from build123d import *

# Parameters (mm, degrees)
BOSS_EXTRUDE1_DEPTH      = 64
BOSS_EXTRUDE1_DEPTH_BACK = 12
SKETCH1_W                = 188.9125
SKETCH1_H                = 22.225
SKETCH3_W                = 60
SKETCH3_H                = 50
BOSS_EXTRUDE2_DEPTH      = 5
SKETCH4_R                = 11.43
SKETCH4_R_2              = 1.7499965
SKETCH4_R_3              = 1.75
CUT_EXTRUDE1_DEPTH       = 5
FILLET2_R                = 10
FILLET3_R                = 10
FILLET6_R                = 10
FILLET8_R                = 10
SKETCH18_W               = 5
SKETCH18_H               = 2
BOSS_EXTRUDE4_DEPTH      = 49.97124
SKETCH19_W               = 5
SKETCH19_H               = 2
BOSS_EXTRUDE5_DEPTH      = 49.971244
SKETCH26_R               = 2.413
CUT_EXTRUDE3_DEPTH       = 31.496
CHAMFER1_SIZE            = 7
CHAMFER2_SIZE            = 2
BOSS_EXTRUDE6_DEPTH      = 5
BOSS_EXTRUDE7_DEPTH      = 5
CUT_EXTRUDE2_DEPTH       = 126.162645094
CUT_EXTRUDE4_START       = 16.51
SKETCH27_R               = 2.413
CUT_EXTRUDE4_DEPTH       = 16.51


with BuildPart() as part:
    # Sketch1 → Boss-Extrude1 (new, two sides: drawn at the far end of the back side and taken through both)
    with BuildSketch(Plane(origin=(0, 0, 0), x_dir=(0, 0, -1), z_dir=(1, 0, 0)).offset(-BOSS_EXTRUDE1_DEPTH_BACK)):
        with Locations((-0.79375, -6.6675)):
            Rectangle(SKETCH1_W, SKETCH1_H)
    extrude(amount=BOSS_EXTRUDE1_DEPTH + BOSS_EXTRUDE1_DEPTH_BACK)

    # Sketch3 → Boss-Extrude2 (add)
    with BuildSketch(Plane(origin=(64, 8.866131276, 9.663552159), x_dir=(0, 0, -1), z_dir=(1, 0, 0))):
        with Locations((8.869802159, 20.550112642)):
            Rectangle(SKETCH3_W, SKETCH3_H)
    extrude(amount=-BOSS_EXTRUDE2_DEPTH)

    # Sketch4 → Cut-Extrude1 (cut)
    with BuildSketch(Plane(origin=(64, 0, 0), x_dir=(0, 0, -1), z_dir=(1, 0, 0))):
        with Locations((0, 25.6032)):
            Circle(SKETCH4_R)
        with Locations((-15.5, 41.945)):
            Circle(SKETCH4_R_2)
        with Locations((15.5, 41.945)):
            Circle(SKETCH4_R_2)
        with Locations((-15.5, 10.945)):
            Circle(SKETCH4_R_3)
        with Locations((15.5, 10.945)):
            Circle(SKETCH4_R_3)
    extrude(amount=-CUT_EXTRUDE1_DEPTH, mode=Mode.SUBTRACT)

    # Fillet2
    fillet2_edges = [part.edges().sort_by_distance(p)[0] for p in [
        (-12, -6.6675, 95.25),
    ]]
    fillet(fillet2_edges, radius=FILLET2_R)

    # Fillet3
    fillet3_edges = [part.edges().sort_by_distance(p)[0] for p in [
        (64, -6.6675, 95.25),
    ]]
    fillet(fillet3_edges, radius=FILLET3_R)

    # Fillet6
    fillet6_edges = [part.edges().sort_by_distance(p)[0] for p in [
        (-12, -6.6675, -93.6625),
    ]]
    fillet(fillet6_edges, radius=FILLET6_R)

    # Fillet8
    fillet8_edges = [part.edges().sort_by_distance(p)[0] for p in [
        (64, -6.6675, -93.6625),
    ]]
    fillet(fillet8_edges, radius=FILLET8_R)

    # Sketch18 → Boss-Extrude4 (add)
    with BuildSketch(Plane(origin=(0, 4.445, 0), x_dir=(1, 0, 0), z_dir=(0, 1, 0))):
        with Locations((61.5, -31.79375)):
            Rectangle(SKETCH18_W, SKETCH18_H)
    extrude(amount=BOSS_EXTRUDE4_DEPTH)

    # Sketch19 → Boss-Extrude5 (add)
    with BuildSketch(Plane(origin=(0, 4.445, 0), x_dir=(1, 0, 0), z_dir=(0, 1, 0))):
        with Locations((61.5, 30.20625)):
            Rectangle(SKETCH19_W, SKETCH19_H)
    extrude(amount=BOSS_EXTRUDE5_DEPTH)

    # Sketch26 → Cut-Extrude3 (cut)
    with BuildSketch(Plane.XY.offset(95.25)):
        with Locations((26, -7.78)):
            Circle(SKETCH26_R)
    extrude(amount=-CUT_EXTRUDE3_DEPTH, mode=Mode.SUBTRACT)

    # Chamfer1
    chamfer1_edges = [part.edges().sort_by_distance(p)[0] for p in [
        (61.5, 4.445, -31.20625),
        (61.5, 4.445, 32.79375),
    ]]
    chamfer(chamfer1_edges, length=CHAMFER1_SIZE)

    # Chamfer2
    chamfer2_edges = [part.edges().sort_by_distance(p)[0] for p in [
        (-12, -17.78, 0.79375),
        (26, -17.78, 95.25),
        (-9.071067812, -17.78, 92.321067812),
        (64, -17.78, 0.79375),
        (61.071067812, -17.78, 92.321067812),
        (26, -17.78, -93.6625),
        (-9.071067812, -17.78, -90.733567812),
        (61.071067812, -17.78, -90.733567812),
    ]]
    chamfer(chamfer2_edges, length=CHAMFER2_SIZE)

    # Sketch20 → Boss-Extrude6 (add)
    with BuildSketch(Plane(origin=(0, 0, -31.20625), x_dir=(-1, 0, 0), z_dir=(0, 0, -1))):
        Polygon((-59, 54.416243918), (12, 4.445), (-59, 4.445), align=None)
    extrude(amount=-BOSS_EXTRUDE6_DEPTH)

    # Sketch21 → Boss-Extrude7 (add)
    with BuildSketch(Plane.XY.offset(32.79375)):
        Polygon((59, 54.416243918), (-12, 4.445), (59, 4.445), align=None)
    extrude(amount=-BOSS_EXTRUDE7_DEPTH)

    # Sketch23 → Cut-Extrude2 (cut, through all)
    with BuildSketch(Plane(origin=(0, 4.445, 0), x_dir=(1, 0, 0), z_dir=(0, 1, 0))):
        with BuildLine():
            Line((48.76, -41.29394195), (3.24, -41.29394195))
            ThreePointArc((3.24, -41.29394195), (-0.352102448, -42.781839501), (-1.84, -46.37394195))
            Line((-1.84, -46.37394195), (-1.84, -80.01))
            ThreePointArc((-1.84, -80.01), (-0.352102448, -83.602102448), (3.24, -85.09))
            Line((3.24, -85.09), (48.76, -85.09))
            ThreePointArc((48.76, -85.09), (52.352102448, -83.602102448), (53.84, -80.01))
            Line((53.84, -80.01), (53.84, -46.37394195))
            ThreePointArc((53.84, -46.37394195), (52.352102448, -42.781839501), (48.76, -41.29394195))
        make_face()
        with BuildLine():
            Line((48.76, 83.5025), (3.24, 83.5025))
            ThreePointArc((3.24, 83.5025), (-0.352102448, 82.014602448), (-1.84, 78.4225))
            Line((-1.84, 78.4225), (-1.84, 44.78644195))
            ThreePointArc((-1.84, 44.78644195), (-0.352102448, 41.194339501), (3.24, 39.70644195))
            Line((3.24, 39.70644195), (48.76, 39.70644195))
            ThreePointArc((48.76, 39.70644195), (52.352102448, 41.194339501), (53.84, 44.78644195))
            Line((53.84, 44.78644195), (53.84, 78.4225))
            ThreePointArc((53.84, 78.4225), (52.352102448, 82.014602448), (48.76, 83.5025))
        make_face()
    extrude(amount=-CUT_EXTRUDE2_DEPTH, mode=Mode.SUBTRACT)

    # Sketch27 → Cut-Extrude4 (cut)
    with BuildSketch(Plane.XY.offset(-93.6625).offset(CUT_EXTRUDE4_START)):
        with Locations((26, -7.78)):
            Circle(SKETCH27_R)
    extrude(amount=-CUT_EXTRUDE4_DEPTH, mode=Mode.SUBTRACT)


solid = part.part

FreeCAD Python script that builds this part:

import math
import FreeCAD as App
import Part
import Sketcher
from FreeCAD import Vector
Q = App.Units.Quantity


def edges_at(feature, points):
    """Names of the edges that pass closest to the given points."""
    edges = feature.Shape.Edges
    near = lambda p: min(range(len(edges)), key=lambda i: edges[i].distToShape(Part.Vertex(*p))[0])
    return sorted({f"Edge{near(p) + 1}" for p in points})


def add_polygon(sketch, points):
    """Adds a closed chain of lines whose ends are joined by coincident constraints."""
    first, n = sketch.GeometryCount, len(points)
    for a, b in zip(points, points[1:] + points[:1]):
        sketch.addGeometry(Part.LineSegment(App.Vector(*a, 0), App.Vector(*b, 0)), False)
    for i in range(n):
        sketch.addConstraint(Sketcher.Constraint("Coincident", first + i, 2, first + (i + 1) % n, 1))

doc = App.newDocument("Part")
params = doc.addObject("Spreadsheet::Sheet", "Params")
for row, (alias, value) in enumerate([
    ("pad1_length", "64 mm"),
    ("pad1_length2", "12 mm"),
    ("sketch2_width", "50 mm"),
    ("sketch2_height", "60 mm"),
    ("pad2_length", "5 mm"),
    ("sketch3_diameter", "3.5 mm"),
    ("sketch3_diameter2", "22.86 mm"),
    ("pocket1_length", "5 mm"),
    ("fillet_radius", "10 mm"),
    ("fillet2_radius", "10 mm"),
    ("fillet3_radius", "10 mm"),
    ("fillet4_radius", "10 mm"),
    ("sketch4_width", "5 mm"),
    ("sketch4_height", "2 mm"),
    ("pad3_length", "49.97124 mm"),
    ("sketch5_width", "5 mm"),
    ("sketch5_height", "2 mm"),
    ("pad4_length", "49.971244 mm"),
    ("pocket2_length", "31.496 mm"),
    ("chamfer_size", "7 mm"),
    ("chamfer2_size", "2 mm"),
    ("sketch7_width", "71 mm"),
    ("pad5_length", "5 mm"),
    ("sketch8_width", "71 mm"),
    ("pad6_length", "5 mm"),
    ("sketch9_radius", "5.08 mm"),
    ("sketch9_width", "45.52 mm"),
    ("pocket4_length", "16.51 mm"),
], start=1):
    params.set(f"A{row}", alias)
    params.set(f"B{row}", "=" + value)
    params.setAlias(f"B{row}", alias)

body = doc.addObject("PartDesign::Body", "Body")

sketch1 = body.newObject("Sketcher::SketchObject", "Sketch")
sketch1.AttachmentSupport = (doc.getObject("YZ_Plane"), [""])
sketch1.MapMode = "FlatFace"
add_polygon(sketch1, [(4, 95), (-18, 95), (-18, -94), (4, -94)])
sketch1.addConstraint([
    Sketcher.Constraint("Horizontal", 0),
    Sketcher.Constraint("Vertical", 1),
    Sketcher.Constraint("Horizontal", 2),
    Sketcher.Constraint("Vertical", 3),
    Sketcher.Constraint("DistanceX", 0, 2, 0, 1, Q("22.225 mm")),
    Sketcher.Constraint("DistanceX", 0, 2, -1, 1, Q("17.78 mm")),
    Sketcher.Constraint("DistanceY", -1, 1, 0, 2, Q("95.25 mm")),
    Sketcher.Constraint("DistanceY", 1, 2, 1, 1, Q("188.9125 mm")),
])
pad1 = body.newObject("PartDesign::Pad", "Pad")
pad1.Profile = sketch1
pad1.Type = "TwoLengths"
pad1.setExpression("Length", "Params.pad1_length")
pad1.setExpression("Length2", "Params.pad1_length2")

sketch2 = body.newObject("Sketcher::SketchObject", "Sketch001")
sketch2.AttachmentSupport = (doc.getObject("YZ_Plane"), [""])
sketch2.MapMode = "FlatFace"
sketch2.AttachmentOffset = App.Placement(Vector(0, 0, 64), App.Rotation())
add_polygon(sketch2, [(54, 31), (4, 31), (4, -29), (54, -29)])
sketch2.addConstraint([
    Sketcher.Constraint("Horizontal", 0),
    Sketcher.Constraint("Vertical", 1),
    Sketcher.Constraint("Horizontal", 2),
    Sketcher.Constraint("Vertical", 3),
    Sketcher.Constraint("DistanceX", 0, 2, 0, 1, Q("50 mm")),
    Sketcher.Constraint("DistanceY", 1, 2, 1, 1, Q("60 mm")),
    Sketcher.Constraint("DistanceY", -1, 1, 0, 2, Q("30.79375 mm")),
    Sketcher.Constraint("DistanceX", -1, 1, 0, 2, Q("4.416244 mm")),
])
sketch2.setExpression("Constraints[8]", "Params.sketch2_width")
sketch2.setExpression("Constraints[9]", "Params.sketch2_height")
pad2 = body.newObject("PartDesign::Pad", "Pad001")
pad2.Profile = sketch2
pad2.setExpression("Length", "Params.pad2_length")
pad2.Reversed = True

sketch3 = body.newObject("Sketcher::SketchObject", "Sketch002")
sketch3.AttachmentSupport = (doc.getObject("YZ_Plane"), [""])
sketch3.MapMode = "FlatFace"
sketch3.AttachmentOffset = App.Placement(Vector(0, 0, 64), App.Rotation())
sketch3.addGeometry([
    Part.Circle(Vector(25.6, 0, 0), Vector(0, 0, 1), 11.4),
    Part.Circle(Vector(41.9, 15.5, 0), Vector(0, 0, 1), 1.7),
    Part.Circle(Vector(41.9, -15.5, 0), Vector(0, 0, 1), 1.7),
    Part.Circle(Vector(10.9, 15.5, 0), Vector(0, 0, 1), 1.8),
    Part.Circle(Vector(10.9, -15.5, 0), Vector(0, 0, 1), 1.8),
], False)
sketch3.addConstraint([
    Sketcher.Constraint("Equal", 1, 2),
    Sketcher.Constraint("Equal", 3, 4),
    Sketcher.Constraint("Symmetric", 1, 3, 2, 3, -1),
    Sketcher.Constraint("Symmetric", 3, 3, 4, 3, -1),
    Sketcher.Constraint("PointOnObject", 0, 3, -1),
    Sketcher.Constraint("Horizontal", 1, 3, 3, 3),
    Sketcher.Constraint("Diameter", 3, Q("3.5 mm")),
    Sketcher.Constraint("Diameter", 0, Q("22.86 mm")),
    Sketcher.Constraint("DistanceY", 2, 3, 1, 3, Q("31 mm")),
    Sketcher.Constraint("DistanceX", 3, 3, 1, 3, Q("31 mm")),
    Sketcher.Constraint("Diameter", 1, Q("3.499993 mm")),
    Sketcher.Constraint("DistanceX", -1, 1, 1, 3, Q("41.945 mm")),
    Sketcher.Constraint("DistanceX", -1, 1, 0, 3, Q("25.6032 mm")),
])
sketch3.setExpression("Constraints[6]", "Params.sketch3_diameter")
sketch3.setExpression("Constraints[7]", "Params.sketch3_diameter2")
pocket1 = body.newObject("PartDesign::Pocket", "Pocket")
pocket1.Profile = sketch3
pocket1.setExpression("Length", "Params.pocket1_length")
doc.recompute()

fillet = body.newObject("PartDesign::Fillet", "Fillet")
fillet.Base = (pocket1, edges_at(pocket1, [(-12, -6.668, 95.25)]))
fillet.setExpression("Radius", "Params.fillet_radius")
doc.recompute()

fillet2 = body.newObject("PartDesign::Fillet", "Fillet001")
fillet2.Base = (fillet, edges_at(fillet, [(64, -6.668, 95.25)]))
fillet2.setExpression("Radius", "Params.fillet2_radius")
doc.recompute()

fillet3 = body.newObject("PartDesign::Fillet", "Fillet002")
fillet3.Base = (fillet2, edges_at(fillet2, [(-12, -6.668, -93.662)]))
fillet3.setExpression("Radius", "Params.fillet3_radius")
doc.recompute()

fillet4 = body.newObject("PartDesign::Fillet", "Fillet003")
fillet4.Base = (fillet3, edges_at(fillet3, [(64, -6.668, -93.662)]))
fillet4.setExpression("Radius", "Params.fillet4_radius")

sketch4 = body.newObject("Sketcher::SketchObject", "Sketch003")
sketch4.AttachmentSupport = (doc.getObject("XZ_Plane"), [""])
sketch4.MapMode = "FlatFace"
sketch4.AttachmentOffset = App.Placement(Vector(0, 0, -4.445), App.Rotation())
add_polygon(sketch4, [(59, 30.8), (59, 32.8), (64, 32.8), (64, 30.8)])
sketch4.addConstraint([
    Sketcher.Constraint("Vertical", 0),
    Sketcher.Constraint("Horizontal", 1),
    Sketcher.Constraint("Vertical", 2),
    Sketcher.Constraint("Horizontal", 3),
    Sketcher.Constraint("DistanceX", 1, 1, 1, 2, Q("5 mm")),
    Sketcher.Constraint("DistanceY", 0, 1, 0, 2, Q("2 mm")),
    Sketcher.Constraint("DistanceX", -1, 1, 0, 2, Q("59 mm")),
    Sketcher.Constraint("DistanceY", -1, 1, 0, 2, Q("32.79375 mm")),
])
sketch4.setExpression("Constraints[8]", "Params.sketch4_width")
sketch4.setExpression("Constraints[9]", "Params.sketch4_height")
pad3 = body.newObject("PartDesign::Pad", "Pad002")
pad3.Profile = sketch4
pad3.setExpression("Length", "Params.pad3_length")
pad3.Reversed = True

sketch5 = body.newObject("Sketcher::SketchObject", "Sketch004")
sketch5.AttachmentSupport = (doc.getObject("XZ_Plane"), [""])
sketch5.MapMode = "FlatFace"
sketch5.AttachmentOffset = App.Placement(Vector(0, 0, -4.445), App.Rotation())
add_polygon(sketch5, [(59, -31.2), (59, -29.2), (64, -29.2), (64, -31.2)])
sketch5.addConstraint([
    Sketcher.Constraint("Vertical", 0),
    Sketcher.Constraint("Horizontal", 1),
    Sketcher.Constraint("Vertical", 2),
    Sketcher.Constraint("Horizontal", 3),
    Sketcher.Constraint("DistanceX", 1, 1, 1, 2, Q("5 mm")),
    Sketcher.Constraint("DistanceY", 0, 1, 0, 2, Q("2 mm")),
    Sketcher.Constraint("DistanceX", -1, 1, 0, 2, Q("59 mm")),
    Sketcher.Constraint("DistanceY", 0, 2, -1, 1, Q("29.20625 mm")),
])
sketch5.setExpression("Constraints[8]", "Params.sketch5_width")
sketch5.setExpression("Constraints[9]", "Params.sketch5_height")
pad4 = body.newObject("PartDesign::Pad", "Pad003")
pad4.Profile = sketch5
pad4.setExpression("Length", "Params.pad4_length")
pad4.Reversed = True

sketch6 = body.newObject("Sketcher::SketchObject", "Sketch005")
sketch6.AttachmentSupport = (doc.getObject("XY_Plane"), [""])
sketch6.MapMode = "FlatFace"
sketch6.AttachmentOffset = App.Placement(Vector(0, 0, 95.25), App.Rotation())
sketch6.addGeometry(Part.Circle(Vector(26, -7.8, 0), Vector(0, 0, 1), 2.4), False)
sketch6.addConstraint([
    Sketcher.Constraint("Diameter", 0, Q("4.826 mm")),
    Sketcher.Constraint("DistanceX", -1, 1, 0, 3, Q("26 mm")),
    Sketcher.Constraint("DistanceY", 0, 3, -1, 1, Q("7.78 mm")),
])
pocket2 = body.newObject("PartDesign::Pocket", "Pocket001")
pocket2.Profile = sketch6
pocket2.setExpression("Length", "Params.pocket2_length")
doc.recompute()

chamfer = body.newObject("PartDesign::Chamfer", "Chamfer")
chamfer.Base = (pocket2, edges_at(pocket2, [(61.5, 4.445, -31.206), (61.5, 4.445, 32.794)]))
chamfer.setExpression("Size", "Params.chamfer_size")
doc.recompute()

chamfer2 = body.newObject("PartDesign::Chamfer", "Chamfer001")
chamfer2.Base = (chamfer, edges_at(chamfer, [
    (-12, -17.78, 0.794),
    (26, -17.78, 95.25),
    (-9.071, -17.78, 92.321),
    (64, -17.78, 0.794),
    (61.071, -17.78, 92.321),
    (26, -17.78, -93.662),
    (-9.071, -17.78, -90.734),
    (61.071, -17.78, -90.734),
]))
chamfer2.setExpression("Size", "Params.chamfer2_size")

sketch7 = body.newObject("Sketcher::SketchObject", "Sketch006")
sketch7.AttachmentSupport = (doc.getObject("XY_Plane"), [""])
sketch7.MapMode = "FlatFace"
sketch7.AttachmentOffset = App.Placement(Vector(0, 0, -31.20625), App.Rotation())
add_polygon(sketch7, [(-12, 4), (59, 54), (59, 4)])
sketch7.addConstraint([
    Sketcher.Constraint("Vertical", 1),
    Sketcher.Constraint("Horizontal", 2),
    Sketcher.Constraint("DistanceX", 2, 2, 2, 1, Q("71 mm")),
    Sketcher.Constraint("DistanceX", -1, 1, 0, 2, Q("59 mm")),
    Sketcher.Constraint("DistanceY", -1, 1, 1, 2, Q("4.445 mm")),
    Sketcher.Constraint("DistanceY", 1, 2, 1, 1, Q("49.971244 mm")),
])
sketch7.setExpression("Constraints[5]", "Params.sketch7_width")
pad5 = body.newObject("PartDesign::Pad", "Pad004")
pad5.Profile = sketch7
pad5.setExpression("Length", "Params.pad5_length")

sketch8 = body.newObject("Sketcher::SketchObject", "Sketch007")
sketch8.AttachmentSupport = (doc.getObject("XY_Plane"), [""])
sketch8.MapMode = "FlatFace"
sketch8.AttachmentOffset = App.Placement(Vector(0, 0, 32.79375), App.Rotation())
add_polygon(sketch8, [(59, 54), (-12, 4), (59, 4)])
sketch8.addConstraint([
    Sketcher.Constraint("Horizontal", 1),
    Sketcher.Constraint("Vertical", 2),
    Sketcher.Constraint("DistanceX", 1, 1, 1, 2, Q("71 mm")),
    Sketcher.Constraint("DistanceX", 0, 2, -1, 1, Q("12 mm")),
    Sketcher.Constraint("DistanceY", -1, 1, 0, 2, Q("4.445 mm")),
    Sketcher.Constraint("DistanceY", 2, 1, 2, 2, Q("49.971244 mm")),
])
sketch8.setExpression("Constraints[5]", "Params.sketch8_width")
pad6 = body.newObject("PartDesign::Pad", "Pad005")
pad6.Profile = sketch8
pad6.setExpression("Length", "Params.pad6_length")
pad6.Reversed = True

sketch9 = body.newObject("Sketcher::SketchObject", "Sketch008")
sketch9.AttachmentSupport = (doc.getObject("XZ_Plane"), [""])
sketch9.MapMode = "FlatFace"
sketch9.AttachmentOffset = App.Placement(Vector(0, 0, -4.445), App.Rotation())
sketch9.addGeometry([
    Part.LineSegment(Vector(49, 41, 0), Vector(3, 41, 0)),
    Part.ArcOfCircle(Part.Circle(Vector(3, 46, 0), Vector(0, 0, 1), 5), math.radians(180), math.radians(270)),
    Part.LineSegment(Vector(-2, 46, 0), Vector(-2, 80, 0)),
    Part.ArcOfCircle(Part.Circle(Vector(3, 80, 0), Vector(0, 0, 1), 5), math.radians(90), math.radians(180)),
    Part.LineSegment(Vector(3, 85, 0), Vector(49, 85, 0)),
    Part.ArcOfCircle(Part.Circle(Vector(49, 80, 0), Vector(0, 0, 1), 5), math.radians(0), math.radians(90)),
    Part.LineSegment(Vector(54, 80, 0), Vector(54, 46, 0)),
    Part.ArcOfCircle(Part.Circle(Vector(49, 46, 0), Vector(0, 0, 1), 5), math.radians(-90), math.radians(0)),
    Part.LineSegment(Vector(49, -84, 0), Vector(3, -84, 0)),
    Part.ArcOfCircle(Part.Circle(Vector(3, -78, 0), Vector(0, 0, 1), 5), math.radians(-180), math.radians(-90)),
    Part.LineSegment(Vector(-2, -78, 0), Vector(-2, -45, 0)),
    Part.ArcOfCircle(Part.Circle(Vector(3, -45, 0), Vector(0, 0, 1), 5), math.radians(90), math.radians(180)),
    Part.LineSegment(Vector(3, -40, 0), Vector(49, -40, 0)),
    Part.ArcOfCircle(Part.Circle(Vector(49, -45, 0), Vector(0, 0, 1), 5), math.radians(0), math.radians(90)),
    Part.LineSegment(Vector(54, -45, 0), Vector(54, -78, 0)),
    Part.ArcOfCircle(Part.Circle(Vector(49, -78, 0), Vector(0, 0, 1), 5), math.radians(-90), math.radians(0)),
], False)
sketch9.addConstraint([
    Sketcher.Constraint("Tangent", 0, 2, 1, 2),
    Sketcher.Constraint("Tangent", 1, 1, 2, 1),
    Sketcher.Constraint("Tangent", 2, 2, 3, 2),
    Sketcher.Constraint("Tangent", 3, 1, 4, 1),
    Sketcher.Constraint("Tangent", 4, 2, 5, 2),
    Sketcher.Constraint("Tangent", 5, 1, 6, 1),
    Sketcher.Constraint("Tangent", 6, 2, 7, 2),
    Sketcher.Constraint("Tangent", 7, 1, 0, 1),
    Sketcher.Constraint("Tangent", 8, 2, 9, 2),
    Sketcher.Constraint("Tangent", 9, 1, 10, 1),
    Sketcher.Constraint("Tangent", 10, 2, 11, 2),
    Sketcher.Constraint("Tangent", 11, 1, 12, 1),
    Sketcher.Constraint("Tangent", 12, 2, 13, 2),
    Sketcher.Constraint("Tangent", 13, 1, 14, 1),
    Sketcher.Constraint("Tangent", 14, 2, 15, 2),
    Sketcher.Constraint("Tangent", 15, 1, 8, 1),
    Sketcher.Constraint("Horizontal", 0),
    Sketcher.Constraint("Vertical", 2),
    Sketcher.Constraint("Horizontal", 4),
    Sketcher.Constraint("Vertical", 6),
    Sketcher.Constraint("Horizontal", 8),
    Sketcher.Constraint("Vertical", 10),
    Sketcher.Constraint("Horizontal", 12),
    Sketcher.Constraint("Vertical", 14),
    Sketcher.Constraint("Equal", 1, 3),
    Sketcher.Constraint("Equal", 3, 5),
    Sketcher.Constraint("Equal", 5, 7),
    Sketcher.Constraint("Equal", 7, 9),
    Sketcher.Constraint("Equal", 9, 11),
    Sketcher.Constraint("Equal", 11, 13),
    Sketcher.Constraint("Equal", 13, 15),
    Sketcher.Constraint("Vertical", 3, 3, 9, 3),
    Sketcher.Constraint("Vertical", 7, 3, 13, 3),
    Sketcher.Constraint("Equal", 6, 10),
    Sketcher.Constraint("Radius", 1, Q("5.08 mm")),
    Sketcher.Constraint("DistanceX", 0, 2, 0, 1, Q("45.52 mm")),
    Sketcher.Constraint("DistanceX", -1, 1, 1, 3, Q("3.24 mm")),
    Sketcher.Constraint("DistanceY", -1, 1, 3, 3, Q("80.01 mm")),
    Sketcher.Constraint("DistanceY", 2, 1, 2, 2, Q("33.636058 mm")),
    Sketcher.Constraint("DistanceY", 9, 3, -1, 1, Q("78.4225 mm")),
])
sketch9.setExpression("Constraints[34]", "Params.sketch9_radius")
sketch9.setExpression("Constraints[35]", "Params.sketch9_width")
pocket3 = body.newObject("PartDesign::Pocket", "Pocket002")
pocket3.Profile = sketch9
pocket3.Type = "ThroughAll"
pocket3.Reversed = True

sketch10 = body.newObject("Sketcher::SketchObject", "Sketch009")
sketch10.AttachmentSupport = (doc.getObject("XY_Plane"), [""])
sketch10.MapMode = "FlatFace"
sketch10.AttachmentOffset = App.Placement(Vector(0, 0, -77.1525), App.Rotation())
sketch10.addGeometry(Part.Circle(Vector(26, -7.8, 0), Vector(0, 0, 1), 2.4), False)
sketch10.addConstraint([
    Sketcher.Constraint("Diameter", 0, Q("4.826 mm")),
    Sketcher.Constraint("DistanceX", -1, 1, 0, 3, Q("26 mm")),
    Sketcher.Constraint("DistanceY", 0, 3, -1, 1, Q("7.78 mm")),
])
pocket4 = body.newObject("PartDesign::Pocket", "Pocket003")
pocket4.Profile = sketch10
pocket4.setExpression("Length", "Params.pocket4_length")

doc.recompute()
